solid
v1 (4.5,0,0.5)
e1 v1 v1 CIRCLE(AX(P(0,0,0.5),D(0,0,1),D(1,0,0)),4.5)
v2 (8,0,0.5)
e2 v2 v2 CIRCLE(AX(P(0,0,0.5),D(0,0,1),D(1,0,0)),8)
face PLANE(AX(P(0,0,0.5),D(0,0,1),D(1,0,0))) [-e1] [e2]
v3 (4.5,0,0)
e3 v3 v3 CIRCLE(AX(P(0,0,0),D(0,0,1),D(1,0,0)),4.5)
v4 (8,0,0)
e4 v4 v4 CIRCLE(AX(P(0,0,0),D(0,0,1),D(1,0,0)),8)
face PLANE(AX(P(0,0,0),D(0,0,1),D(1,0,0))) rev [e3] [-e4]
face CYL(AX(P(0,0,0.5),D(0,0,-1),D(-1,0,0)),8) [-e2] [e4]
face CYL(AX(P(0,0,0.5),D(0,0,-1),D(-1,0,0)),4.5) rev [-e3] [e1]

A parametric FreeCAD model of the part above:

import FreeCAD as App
import Part
import Sketcher
Q = App.Units.Quantity

doc = App.newDocument("Part")
body = doc.addObject("PartDesign::Body", "Body")

# Sketch on XY plane
sketch1 = body.newObject("Sketcher::SketchObject", "Sketch")
sketch1.AttachmentSupport = (doc.getObject("XY_Plane"), [""])
sketch1.MapMode = "FlatFace"
sketch1.addGeometry(Part.Circle(App.Vector(0, 0, 0), App.Vector(0, 0, 1), 8), False)
sketch1.addGeometry(Part.Circle(App.Vector(0, 0, 0), App.Vector(0, 0, 1), 4.5), False)
sketch1.addConstraint(Sketcher.Constraint("Coincident", 0, 3, -1, 1))
sketch1.addConstraint(Sketcher.Constraint("Coincident", 1, 3, -1, 1))
sketch1.addConstraint(Sketcher.Constraint("Diameter", 0, Q("16 mm")))
sketch1.addConstraint(Sketcher.Constraint("Diameter", 1, Q("9 mm")))
pad1 = body.newObject("PartDesign::Pad", "Pad")
pad1.Profile = sketch1
pad1.Length = 0.5

doc.recompute()
